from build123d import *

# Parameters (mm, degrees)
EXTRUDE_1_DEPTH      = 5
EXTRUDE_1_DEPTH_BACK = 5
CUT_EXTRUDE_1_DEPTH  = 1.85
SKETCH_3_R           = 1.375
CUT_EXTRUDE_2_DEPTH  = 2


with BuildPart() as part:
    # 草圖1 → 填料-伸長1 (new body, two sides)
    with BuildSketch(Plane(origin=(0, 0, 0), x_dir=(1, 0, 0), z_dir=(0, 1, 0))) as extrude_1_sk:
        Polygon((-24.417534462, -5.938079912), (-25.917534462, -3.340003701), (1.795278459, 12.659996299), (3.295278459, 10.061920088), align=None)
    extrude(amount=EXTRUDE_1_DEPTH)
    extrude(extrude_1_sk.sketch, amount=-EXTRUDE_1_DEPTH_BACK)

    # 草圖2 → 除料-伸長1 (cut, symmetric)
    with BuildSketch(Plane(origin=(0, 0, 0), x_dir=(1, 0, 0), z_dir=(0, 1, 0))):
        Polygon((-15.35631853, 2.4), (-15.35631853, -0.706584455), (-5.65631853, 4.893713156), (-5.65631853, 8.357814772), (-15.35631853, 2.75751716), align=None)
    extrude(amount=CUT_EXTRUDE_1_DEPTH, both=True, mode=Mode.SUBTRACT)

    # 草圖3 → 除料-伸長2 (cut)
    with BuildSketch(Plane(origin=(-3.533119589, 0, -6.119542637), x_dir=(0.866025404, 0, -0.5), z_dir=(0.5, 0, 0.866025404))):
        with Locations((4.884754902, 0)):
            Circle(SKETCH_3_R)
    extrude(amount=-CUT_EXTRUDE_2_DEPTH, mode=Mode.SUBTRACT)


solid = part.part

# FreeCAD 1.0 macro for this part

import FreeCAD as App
import Part
import Sketcher
from FreeCAD import Vector
Q = App.Units.Quantity

doc = App.newDocument("Part")
body = doc.addObject("PartDesign::Body", "Body")

sketch1 = body.newObject("Sketcher::SketchObject", "Sketch")
sketch1.AttachmentSupport = (doc.getObject("XZ_Plane"), [""])
sketch1.MapMode = "FlatFace"
sketch1.addGeometry([
    Part.LineSegment(Vector(-25.9, 3.3, 0), Vector(-24.4, 5.9, 0)),
    Part.LineSegment(Vector(-24.4, 5.9, 0), Vector(3.3, -10.1, 0)),
    Part.LineSegment(Vector(3.3, -10.1, 0), Vector(1.8, -12.7, 0)),
    Part.LineSegment(Vector(1.8, -12.7, 0), Vector(-25.9, 3.3, 0)),
], False)
sketch1.addConstraint([
    Sketcher.Constraint("Coincident", 0, 2, 1, 1),
    Sketcher.Constraint("Coincident", 1, 2, 2, 1),
    Sketcher.Constraint("Coincident", 2, 2, 3, 1),
    Sketcher.Constraint("Coincident", 3, 2, 0, 1),
    Sketcher.Constraint("Perpendicular", 0, 1),
    Sketcher.Constraint("Perpendicular", 1, 2),
    Sketcher.Constraint("Perpendicular", 2, 3),
    Sketcher.Constraint("Angle", 0, Q("60 deg")),
    Sketcher.Constraint("Distance", 0, Q("3 mm")),
    Sketcher.Constraint("Distance", 1, Q("32 mm")),
    Sketcher.Constraint("DistanceY", -1, 1, 0, 2, Q("5.93808 mm")),
    Sketcher.Constraint("DistanceX", -1, 1, 1, 2, Q("3.295278 mm")),
])
pad1 = body.newObject("PartDesign::Pad", "Pad")
pad1.Profile = sketch1
pad1.Type = "TwoLengths"
pad1.Length = 5
pad1.Length2 = 5
pad1.Reversed = True

sketch2 = body.newObject("Sketcher::SketchObject", "Sketch001")
sketch2.AttachmentSupport = (doc.getObject("XZ_Plane"), [""])
sketch2.MapMode = "FlatFace"
sketch2.addGeometry([
    Part.LineSegment(Vector(-15.4, 0.7, 0), Vector(-5.7, -4.9, 0)),
    Part.LineSegment(Vector(-5.7, -4.9, 0), Vector(-5.7, -8.4, 0)),
    Part.LineSegment(Vector(-5.7, -8.4, 0), Vector(-15.4, -2.8, 0)),
    Part.LineSegment(Vector(-15.4, -2.8, 0), Vector(-15.4, 0.7, 0)),
], False)
sketch2.addConstraint([
    Sketcher.Constraint("Coincident", 0, 2, 1, 1),
    Sketcher.Constraint("Coincident", 1, 2, 2, 1),
    Sketcher.Constraint("Coincident", 2, 2, 3, 1),
    Sketcher.Constraint("Coincident", 3, 2, 0, 1),
    Sketcher.Constraint("Vertical", 1),
    Sketcher.Constraint("Vertical", 3),
    Sketcher.Constraint("Parallel", 0, 2),
    Sketcher.Constraint("Angle", 0, Q("-30 deg")),
    Sketcher.Constraint("DistanceX", 2, 2, 0, 2, Q("9.7 mm")),
    Sketcher.Constraint("DistanceY", 1, 2, 1, 1, Q("3.464102 mm")),
    Sketcher.Constraint("DistanceX", 0, 2, -1, 1, Q("5.656319 mm")),
    Sketcher.Constraint("DistanceY", 0, 2, -1, 1, Q("4.893713 mm")),
])
pocket1 = body.newObject("PartDesign::Pocket", "Pocket")
pocket1.Profile = sketch2
pocket1.Length = 3.7
pocket1.Midplane = True

sketch3 = body.newObject("Sketcher::SketchObject", "Sketch002")
sketch3.Placement = App.Placement(Vector(-3.53312, 0, -6.119543), App.Rotation(Vector(0.866025404, 0, -0.5), Vector(0, 1, 0), Vector(0.5, 0, 0.866025404), "ZXY"))
sketch3.addGeometry(Part.Circle(Vector(4.9, 0, 0), Vector(0, 0, 1), 1.4), False)
sketch3.addConstraint([
    Sketcher.Constraint("PointOnObject", 0, 3, -1),
    Sketcher.Constraint("Diameter", 0, Q("2.75 mm")),
    Sketcher.Constraint("DistanceX", -1, 1, 0, 3, Q("4.884755 mm")),
])
pocket2 = body.newObject("PartDesign::Pocket", "Pocket001")
pocket2.Profile = sketch3
pocket2.Length = 2

doc.recompute()
